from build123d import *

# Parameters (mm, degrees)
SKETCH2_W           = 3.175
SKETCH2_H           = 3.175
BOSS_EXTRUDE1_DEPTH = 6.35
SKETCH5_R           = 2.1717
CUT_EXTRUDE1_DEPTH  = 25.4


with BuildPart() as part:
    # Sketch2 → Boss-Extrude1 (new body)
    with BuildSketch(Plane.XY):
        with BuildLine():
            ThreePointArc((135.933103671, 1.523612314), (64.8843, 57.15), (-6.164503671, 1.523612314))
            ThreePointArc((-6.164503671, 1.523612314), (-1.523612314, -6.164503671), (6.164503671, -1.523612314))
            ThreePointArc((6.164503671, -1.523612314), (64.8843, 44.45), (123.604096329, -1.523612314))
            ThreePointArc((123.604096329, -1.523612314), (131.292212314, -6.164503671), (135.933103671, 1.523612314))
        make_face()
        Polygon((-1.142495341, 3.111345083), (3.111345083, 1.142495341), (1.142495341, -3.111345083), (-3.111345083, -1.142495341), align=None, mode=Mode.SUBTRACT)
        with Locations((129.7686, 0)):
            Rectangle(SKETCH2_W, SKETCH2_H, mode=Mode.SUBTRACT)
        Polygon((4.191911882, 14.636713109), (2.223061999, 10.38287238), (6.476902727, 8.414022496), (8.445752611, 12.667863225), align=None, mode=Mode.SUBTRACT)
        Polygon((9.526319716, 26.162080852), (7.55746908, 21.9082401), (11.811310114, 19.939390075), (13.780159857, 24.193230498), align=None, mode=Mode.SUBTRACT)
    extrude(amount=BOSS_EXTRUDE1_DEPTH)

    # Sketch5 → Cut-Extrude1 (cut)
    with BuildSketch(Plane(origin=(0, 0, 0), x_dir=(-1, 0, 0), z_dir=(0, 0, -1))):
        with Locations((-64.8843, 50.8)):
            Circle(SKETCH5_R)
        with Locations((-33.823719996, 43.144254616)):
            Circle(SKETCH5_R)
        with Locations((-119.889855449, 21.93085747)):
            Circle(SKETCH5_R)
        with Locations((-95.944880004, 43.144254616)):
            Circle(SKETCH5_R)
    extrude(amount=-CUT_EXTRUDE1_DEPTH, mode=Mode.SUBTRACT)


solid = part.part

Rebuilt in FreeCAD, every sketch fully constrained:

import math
import FreeCAD as App
import Part
import Sketcher
from FreeCAD import Vector
Q = App.Units.Quantity


def add_polygon(sketch, points):
    """Adds a closed chain of lines whose ends are joined by coincident constraints."""
    first, n = sketch.GeometryCount, len(points)
    for a, b in zip(points, points[1:] + points[:1]):
        sketch.addGeometry(Part.LineSegment(App.Vector(*a, 0), App.Vector(*b, 0)), False)
    for i in range(n):
        sketch.addConstraint(Sketcher.Constraint("Coincident", first + i, 2, first + (i + 1) % n, 1))

doc = App.newDocument("Part")
body = doc.addObject("PartDesign::Body", "Body")

# Sketch on XY plane
sketch1 = body.newObject("Sketcher::SketchObject", "Sketch")
sketch1.AttachmentSupport = (doc.getObject("XY_Plane"), [""])
sketch1.MapMode = "FlatFace"
sketch1.addGeometry(Part.ArcOfCircle(Part.Circle(Vector(64.9, -16, 0), Vector(0, 0, 1), 73.2), math.radians(14), math.radians(166)), False)  # 0
sketch1.addGeometry(Part.ArcOfCircle(Part.Circle(Vector(0, 0, 0), Vector(0, 0, 1), 6.3), math.radians(166), math.radians(346)), False)  # 1
sketch1.addGeometry(Part.ArcOfCircle(Part.Circle(Vector(64.9, -16, 0), Vector(0, 0, 1), 60.5), math.radians(14), math.radians(166)), False)  # 2
sketch1.addGeometry(Part.ArcOfCircle(Part.Circle(Vector(129.8, 0, 0), Vector(0, 0, 1), 6.3), math.radians(-166), math.radians(14)), False)  # 3
add_polygon(sketch1, [(-3.1, -1.1), (-1.1, 3.1), (3.1, 1.1), (1.1, -3.1)])  # lines 4-7
add_polygon(sketch1, [(2.2, 10.4), (4.2, 14.6), (8.4, 12.7), (6.5, 8.4)])  # lines 8-11
add_polygon(sketch1, [(131.4, -1.6), (128.2, -1.6), (128.2, 1.6), (131.4, 1.6)])  # lines 12-15
add_polygon(sketch1, [(7.6, 21.9), (9.5, 26.2), (13.8, 24.2), (11.8, 19.9)])  # lines 16-19
sketch1.addConstraint(Sketcher.Constraint("Tangent", 0, 2, 1, 1))
sketch1.addConstraint(Sketcher.Constraint("Tangent", 1, 2, 2, 2))
sketch1.addConstraint(Sketcher.Constraint("Tangent", 2, 1, 3, 1))
sketch1.addConstraint(Sketcher.Constraint("Tangent", 3, 2, 0, 1))
sketch1.addConstraint(Sketcher.Constraint("Horizontal", 12))
sketch1.addConstraint(Sketcher.Constraint("Vertical", 13))
sketch1.addConstraint(Sketcher.Constraint("Horizontal", 14))
sketch1.addConstraint(Sketcher.Constraint("Vertical", 15))
sketch1.addConstraint(Sketcher.Constraint("Coincident", 1, 3, -1, 1))
sketch1.addConstraint(Sketcher.Constraint("Coincident", 2, 3, 0, 3))
sketch1.addConstraint(Sketcher.Constraint("Symmetric", 4, 2, 6, 2, -1, 1))
sketch1.addConstraint(Sketcher.Constraint("Symmetric", 5, 2, 7, 2, -1, 1))
sketch1.addConstraint(Sketcher.Constraint("PointOnObject", 3, 3, -1))
sketch1.addConstraint(Sketcher.Constraint("Perpendicular", 4, 5))
sketch1.addConstraint(Sketcher.Constraint("Perpendicular", 7, 8))
sketch1.addConstraint(Sketcher.Constraint("Perpendicular", 8, 9))
sketch1.addConstraint(Sketcher.Constraint("Perpendicular", 9, 10))
sketch1.addConstraint(Sketcher.Constraint("Perpendicular", 10, 11))
sketch1.addConstraint(Sketcher.Constraint("Perpendicular", 11, 16))
sketch1.addConstraint(Sketcher.Constraint("Perpendicular", 16, 17))
sketch1.addConstraint(Sketcher.Constraint("Perpendicular", 17, 18))
sketch1.addConstraint(Sketcher.Constraint("Perpendicular", 18, 19))
sketch1.addConstraint(Sketcher.Constraint("Equal", 14, 13))
sketch1.addConstraint(Sketcher.Constraint("Equal", 4, 5))
sketch1.addConstraint(Sketcher.Constraint("Equal", 7, 8))
sketch1.addConstraint(Sketcher.Constraint("Equal", 8, 9))
sketch1.addConstraint(Sketcher.Constraint("Equal", 11, 16))
sketch1.addConstraint(Sketcher.Constraint("Equal", 16, 17))
sketch1.addConstraint(Sketcher.Constraint("Radius", 1, Q("0.25 in")))
sketch1.addConstraint(Sketcher.Constraint("DistanceX", 12, 2, 12, 1, Q("0.125 in")))
sketch1.addConstraint(Sketcher.Constraint("DistanceX", -1, 1, 3, 3, Q("5.109 in")))
sketch1.addConstraint(Sketcher.Constraint("DistanceY", 12, 2, -1, 1, Q("0.0625 in")))
sketch1.addConstraint(Sketcher.Constraint("DistanceX", 12, 2, 3, 3, Q("0.0625 in")))
sketch1.addConstraint(Sketcher.Constraint("Radius", 0, Q("73.186736 mm")))
sketch1.addConstraint(Sketcher.Constraint("DistanceX", 4, 2, 1, 2, Q("7.306999 mm")))
sketch1.addConstraint(Sketcher.Constraint("DistanceY", 0, 2, 8, 2, Q("13.113101 mm")))
sketch1.addConstraint(Sketcher.Constraint("DistanceX", 4, 2, 10, 2, Q("7.619398 mm")))
sketch1.addConstraint(Sketcher.Constraint("DistanceX", 8, 2, 18, 2, Q("7.619398 mm")))
sketch1.addConstraint(Sketcher.Constraint("Distance", 4, Q("4.68738 mm")))
sketch1.addConstraint(Sketcher.Constraint("DistanceY", -1, 1, 16, 2, Q("26.162081 mm")))
pad1 = body.newObject("PartDesign::Pad", "Pad")
pad1.Profile = sketch1
pad1.Length = Q("0.25 in")

# Sketch on XY plane
sketch2 = body.newObject("Sketcher::SketchObject", "Sketch001")
sketch2.AttachmentSupport = (doc.getObject("XY_Plane"), [""])
sketch2.MapMode = "FlatFace"
sketch2.addGeometry(Part.Circle(Vector(64.9, 50.8, 0), Vector(0, 0, 1), 2.2), False)
sketch2.addGeometry(Part.Circle(Vector(33.8, 43.1, 0), Vector(0, 0, 1), 2.2), False)
sketch2.addGeometry(Part.Circle(Vector(119.9, 21.9, 0), Vector(0, 0, 1), 2.2), False)
sketch2.addGeometry(Part.Circle(Vector(95.9, 43.1, 0), Vector(0, 0, 1), 2.2), False)
sketch2.addConstraint(Sketcher.Constraint("Equal", 0, 1))
sketch2.addConstraint(Sketcher.Constraint("Equal", 1, 2))
sketch2.addConstraint(Sketcher.Constraint("Equal", 2, 3))
sketch2.addConstraint(Sketcher.Constraint("Horizontal", 1, 3, 3, 3))
sketch2.addConstraint(Sketcher.Constraint("Diameter", 0, Q("0.171 in")))
sketch2.addConstraint(Sketcher.Constraint("DistanceY", -1, 1, 0, 3, Q("2 in")))
sketch2.addConstraint(Sketcher.Constraint("DistanceX", -1, 1, 0, 3, Q("2.5545 in")))
sketch2.addConstraint(Sketcher.Constraint("DistanceX", -1, 1, 1, 3, Q("33.82372 mm")))
sketch2.addConstraint(Sketcher.Constraint("DistanceX", -1, 1, 3, 3, Q("95.94488 mm")))
sketch2.addConstraint(Sketcher.Constraint("DistanceY", -1, 1, 1, 3, Q("43.144255 mm")))
sketch2.addConstraint(Sketcher.Constraint("DistanceX", -1, 1, 2, 3, Q("119.889855 mm")))
sketch2.addConstraint(Sketcher.Constraint("DistanceY", -1, 1, 2, 3, Q("21.930857 mm")))
pocket1 = body.newObject("PartDesign::Pocket", "Pocket")
pocket1.Profile = sketch2
pocket1.Length = Q("1 in")
pocket1.Reversed = True

doc.recompute()
